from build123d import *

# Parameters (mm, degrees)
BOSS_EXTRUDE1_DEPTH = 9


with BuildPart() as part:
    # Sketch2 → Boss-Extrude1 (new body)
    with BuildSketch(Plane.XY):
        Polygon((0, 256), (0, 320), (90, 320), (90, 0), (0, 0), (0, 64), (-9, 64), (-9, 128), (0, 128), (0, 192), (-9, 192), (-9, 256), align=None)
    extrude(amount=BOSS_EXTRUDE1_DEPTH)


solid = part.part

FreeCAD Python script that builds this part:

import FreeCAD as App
import Part
import Sketcher

doc = App.newDocument("Part")
params = doc.addObject("Spreadsheet::Sheet", "Params")
for row, (alias, value) in enumerate([
    ("sketch1_width", "9 mm"),
    ("sketch1_width2", "90 mm"),
    ("sketch1_height", "64 mm"),
    ("pad1_length", "9 mm"),
], start=1):
    params.set(f"A{row}", alias)
    params.set(f"B{row}", "=" + value)
    params.setAlias(f"B{row}", alias)

body = doc.addObject("PartDesign::Body", "Body")

# Sketch on XY plane
sketch1 = body.newObject("Sketcher::SketchObject", "Sketch")
sketch1.AttachmentSupport = (doc.getObject("XY_Plane"), [""])
sketch1.MapMode = "FlatFace"
sketch1.addGeometry([
    Part.LineSegment(App.Vector(0, 320, 0), App.Vector(0, 256, 0)),  # 0
    Part.LineSegment(App.Vector(0, 256, 0), App.Vector(-9, 256, 0)),  # 1
    Part.LineSegment(App.Vector(-9, 256, 0), App.Vector(-9, 192, 0)),  # 2
    Part.LineSegment(App.Vector(-9, 192, 0), App.Vector(0, 192, 0)),  # 3
    Part.LineSegment(App.Vector(0, 192, 0), App.Vector(0, 128, 0)),  # 4
    Part.LineSegment(App.Vector(0, 128, 0), App.Vector(-9, 128, 0)),  # 5
    Part.LineSegment(App.Vector(-9, 128, 0), App.Vector(-9, 64, 0)),  # 6
    Part.LineSegment(App.Vector(-9, 64, 0), App.Vector(0, 64, 0)),  # 7
    Part.LineSegment(App.Vector(0, 64, 0), App.Vector(0, 0, 0)),  # 8
    Part.LineSegment(App.Vector(0, 0, 0), App.Vector(90, 0, 0)),  # 9
    Part.LineSegment(App.Vector(90, 0, 0), App.Vector(90, 320, 0)),  # 10
    Part.LineSegment(App.Vector(90, 320, 0), App.Vector(0, 320, 0)),  # 11
], False)
sketch1.addConstraint([
    Sketcher.Constraint("Coincident", 0, 2, 1, 1),
    Sketcher.Constraint("Coincident", 1, 2, 2, 1),
    Sketcher.Constraint("Coincident", 2, 2, 3, 1),
    Sketcher.Constraint("Coincident", 3, 2, 4, 1),
    Sketcher.Constraint("Coincident", 4, 2, 5, 1),
    Sketcher.Constraint("Coincident", 5, 2, 6, 1),
    Sketcher.Constraint("Coincident", 6, 2, 7, 1),
    Sketcher.Constraint("Coincident", 7, 2, 8, 1),
    Sketcher.Constraint("Coincident", 8, 2, 9, 1),
    Sketcher.Constraint("Coincident", 9, 2, 10, 1),
    Sketcher.Constraint("Coincident", 10, 2, 11, 1),
    Sketcher.Constraint("Coincident", 11, 2, 0, 1),
    Sketcher.Constraint("Vertical", 0),
    Sketcher.Constraint("Horizontal", 1),
    Sketcher.Constraint("Vertical", 2),
    Sketcher.Constraint("Horizontal", 3),
    Sketcher.Constraint("Vertical", 4),
    Sketcher.Constraint("Horizontal", 5),
    Sketcher.Constraint("Vertical", 6),
    Sketcher.Constraint("Horizontal", 7),
    Sketcher.Constraint("Vertical", 8),
    Sketcher.Constraint("Horizontal", 9),
    Sketcher.Constraint("Vertical", 10),
    Sketcher.Constraint("Horizontal", 11),
    Sketcher.Constraint("Coincident", 8, 2, -1, 1),
    Sketcher.Constraint("PointOnObject", 0, 2, -2),
    Sketcher.Constraint("PointOnObject", 3, 2, -2),
    Sketcher.Constraint("Vertical", 2, 2, 5, 2),
    Sketcher.Constraint("Equal", 0, 2),
    Sketcher.Constraint("Equal", 2, 4),
    Sketcher.Constraint("Equal", 4, 6),
    Sketcher.Constraint("Equal", 6, 8),
    Sketcher.Constraint("DistanceX", 1, 2, 1, 1, 9.0),
    Sketcher.Constraint("DistanceX", 9, 1, 9, 2, 90.0),
    Sketcher.Constraint("DistanceY", 0, 2, 0, 1, 64.0),
])
sketch1.setExpression("Constraints[32]", "Params.sketch1_width")
sketch1.setExpression("Constraints[33]", "Params.sketch1_width2")
sketch1.setExpression("Constraints[34]", "Params.sketch1_height")
pad1 = body.newObject("PartDesign::Pad", "Pad")
pad1.Profile = sketch1
pad1.setExpression("Length", "Params.pad1_length")

doc.recompute()
